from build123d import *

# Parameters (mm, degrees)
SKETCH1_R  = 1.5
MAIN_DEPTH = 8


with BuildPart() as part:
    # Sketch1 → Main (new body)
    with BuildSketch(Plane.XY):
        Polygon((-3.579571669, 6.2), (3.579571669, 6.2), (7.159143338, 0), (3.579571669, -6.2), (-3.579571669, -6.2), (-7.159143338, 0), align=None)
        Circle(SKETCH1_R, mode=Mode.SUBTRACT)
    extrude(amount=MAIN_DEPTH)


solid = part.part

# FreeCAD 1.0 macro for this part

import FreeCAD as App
import Part
import Sketcher

V = App.Vector
Q = App.Units.Quantity


def add_polygon(sketch, points):
    """Adds a closed chain of lines whose ends are joined by coincident constraints."""
    first, n = sketch.GeometryCount, len(points)
    for a, b in zip(points, points[1:] + points[:1]):
        sketch.addGeometry(Part.LineSegment(App.Vector(*a, 0), App.Vector(*b, 0)), False)
    for i in range(n):
        sketch.addConstraint(Sketcher.Constraint("Coincident", first + i, 2, first + (i + 1) % n, 1))

doc = App.newDocument("Part")
body = doc.addObject("PartDesign::Body", "Body")

# Sketch on XY plane
sketch1 = doc.addObject("Sketcher::SketchObject", "Sketch")
body.addObject(sketch1)
sketch1.AttachmentSupport = (doc.XY_Plane, [""])
sketch1.MapMode = "FlatFace"
add_polygon(sketch1, [(3.579572, 6.2), (-3.579572, 6.2), (-7.159143, 0), (-3.579572, -6.2), (3.579572, -6.2), (7.159143, 0)])  # lines 0-5
sketch1.addGeometry(Part.Circle(V(0, 0, 0), V(0, 0, 1), 1.5), False)  # 6
sketch1.addConstraint([
    Sketcher.Constraint("Horizontal", 0),
    Sketcher.Constraint("Horizontal", 3),
    Sketcher.Constraint("Coincident", 6, 3, -1, 1),
    Sketcher.Constraint("Symmetric", 0, 2, 3, 2, -1, 1),
    Sketcher.Constraint("Symmetric", 1, 2, 4, 2, -1, 1),
    Sketcher.Constraint("PointOnObject", 1, 2, -1),
    Sketcher.Constraint("Parallel", 2, 5),
    Sketcher.Constraint("Vertical", 0, 2, 2, 2),
    Sketcher.Constraint("Diameter", 6, Q("3 mm")),
    Sketcher.Constraint("Angle", 1, Q("-120 deg")),
    Sketcher.Constraint("DistanceY", -1, 1, 0, 2, Q("6.2 mm")),
    Sketcher.Constraint("DistanceX", 0, 2, 0, 1, Q("7.159143 mm")),
])
pad1 = doc.addObject("PartDesign::Pad", "Pad")
body.addObject(pad1)
pad1.Profile = sketch1
pad1.Length = 8

doc.recompute()
